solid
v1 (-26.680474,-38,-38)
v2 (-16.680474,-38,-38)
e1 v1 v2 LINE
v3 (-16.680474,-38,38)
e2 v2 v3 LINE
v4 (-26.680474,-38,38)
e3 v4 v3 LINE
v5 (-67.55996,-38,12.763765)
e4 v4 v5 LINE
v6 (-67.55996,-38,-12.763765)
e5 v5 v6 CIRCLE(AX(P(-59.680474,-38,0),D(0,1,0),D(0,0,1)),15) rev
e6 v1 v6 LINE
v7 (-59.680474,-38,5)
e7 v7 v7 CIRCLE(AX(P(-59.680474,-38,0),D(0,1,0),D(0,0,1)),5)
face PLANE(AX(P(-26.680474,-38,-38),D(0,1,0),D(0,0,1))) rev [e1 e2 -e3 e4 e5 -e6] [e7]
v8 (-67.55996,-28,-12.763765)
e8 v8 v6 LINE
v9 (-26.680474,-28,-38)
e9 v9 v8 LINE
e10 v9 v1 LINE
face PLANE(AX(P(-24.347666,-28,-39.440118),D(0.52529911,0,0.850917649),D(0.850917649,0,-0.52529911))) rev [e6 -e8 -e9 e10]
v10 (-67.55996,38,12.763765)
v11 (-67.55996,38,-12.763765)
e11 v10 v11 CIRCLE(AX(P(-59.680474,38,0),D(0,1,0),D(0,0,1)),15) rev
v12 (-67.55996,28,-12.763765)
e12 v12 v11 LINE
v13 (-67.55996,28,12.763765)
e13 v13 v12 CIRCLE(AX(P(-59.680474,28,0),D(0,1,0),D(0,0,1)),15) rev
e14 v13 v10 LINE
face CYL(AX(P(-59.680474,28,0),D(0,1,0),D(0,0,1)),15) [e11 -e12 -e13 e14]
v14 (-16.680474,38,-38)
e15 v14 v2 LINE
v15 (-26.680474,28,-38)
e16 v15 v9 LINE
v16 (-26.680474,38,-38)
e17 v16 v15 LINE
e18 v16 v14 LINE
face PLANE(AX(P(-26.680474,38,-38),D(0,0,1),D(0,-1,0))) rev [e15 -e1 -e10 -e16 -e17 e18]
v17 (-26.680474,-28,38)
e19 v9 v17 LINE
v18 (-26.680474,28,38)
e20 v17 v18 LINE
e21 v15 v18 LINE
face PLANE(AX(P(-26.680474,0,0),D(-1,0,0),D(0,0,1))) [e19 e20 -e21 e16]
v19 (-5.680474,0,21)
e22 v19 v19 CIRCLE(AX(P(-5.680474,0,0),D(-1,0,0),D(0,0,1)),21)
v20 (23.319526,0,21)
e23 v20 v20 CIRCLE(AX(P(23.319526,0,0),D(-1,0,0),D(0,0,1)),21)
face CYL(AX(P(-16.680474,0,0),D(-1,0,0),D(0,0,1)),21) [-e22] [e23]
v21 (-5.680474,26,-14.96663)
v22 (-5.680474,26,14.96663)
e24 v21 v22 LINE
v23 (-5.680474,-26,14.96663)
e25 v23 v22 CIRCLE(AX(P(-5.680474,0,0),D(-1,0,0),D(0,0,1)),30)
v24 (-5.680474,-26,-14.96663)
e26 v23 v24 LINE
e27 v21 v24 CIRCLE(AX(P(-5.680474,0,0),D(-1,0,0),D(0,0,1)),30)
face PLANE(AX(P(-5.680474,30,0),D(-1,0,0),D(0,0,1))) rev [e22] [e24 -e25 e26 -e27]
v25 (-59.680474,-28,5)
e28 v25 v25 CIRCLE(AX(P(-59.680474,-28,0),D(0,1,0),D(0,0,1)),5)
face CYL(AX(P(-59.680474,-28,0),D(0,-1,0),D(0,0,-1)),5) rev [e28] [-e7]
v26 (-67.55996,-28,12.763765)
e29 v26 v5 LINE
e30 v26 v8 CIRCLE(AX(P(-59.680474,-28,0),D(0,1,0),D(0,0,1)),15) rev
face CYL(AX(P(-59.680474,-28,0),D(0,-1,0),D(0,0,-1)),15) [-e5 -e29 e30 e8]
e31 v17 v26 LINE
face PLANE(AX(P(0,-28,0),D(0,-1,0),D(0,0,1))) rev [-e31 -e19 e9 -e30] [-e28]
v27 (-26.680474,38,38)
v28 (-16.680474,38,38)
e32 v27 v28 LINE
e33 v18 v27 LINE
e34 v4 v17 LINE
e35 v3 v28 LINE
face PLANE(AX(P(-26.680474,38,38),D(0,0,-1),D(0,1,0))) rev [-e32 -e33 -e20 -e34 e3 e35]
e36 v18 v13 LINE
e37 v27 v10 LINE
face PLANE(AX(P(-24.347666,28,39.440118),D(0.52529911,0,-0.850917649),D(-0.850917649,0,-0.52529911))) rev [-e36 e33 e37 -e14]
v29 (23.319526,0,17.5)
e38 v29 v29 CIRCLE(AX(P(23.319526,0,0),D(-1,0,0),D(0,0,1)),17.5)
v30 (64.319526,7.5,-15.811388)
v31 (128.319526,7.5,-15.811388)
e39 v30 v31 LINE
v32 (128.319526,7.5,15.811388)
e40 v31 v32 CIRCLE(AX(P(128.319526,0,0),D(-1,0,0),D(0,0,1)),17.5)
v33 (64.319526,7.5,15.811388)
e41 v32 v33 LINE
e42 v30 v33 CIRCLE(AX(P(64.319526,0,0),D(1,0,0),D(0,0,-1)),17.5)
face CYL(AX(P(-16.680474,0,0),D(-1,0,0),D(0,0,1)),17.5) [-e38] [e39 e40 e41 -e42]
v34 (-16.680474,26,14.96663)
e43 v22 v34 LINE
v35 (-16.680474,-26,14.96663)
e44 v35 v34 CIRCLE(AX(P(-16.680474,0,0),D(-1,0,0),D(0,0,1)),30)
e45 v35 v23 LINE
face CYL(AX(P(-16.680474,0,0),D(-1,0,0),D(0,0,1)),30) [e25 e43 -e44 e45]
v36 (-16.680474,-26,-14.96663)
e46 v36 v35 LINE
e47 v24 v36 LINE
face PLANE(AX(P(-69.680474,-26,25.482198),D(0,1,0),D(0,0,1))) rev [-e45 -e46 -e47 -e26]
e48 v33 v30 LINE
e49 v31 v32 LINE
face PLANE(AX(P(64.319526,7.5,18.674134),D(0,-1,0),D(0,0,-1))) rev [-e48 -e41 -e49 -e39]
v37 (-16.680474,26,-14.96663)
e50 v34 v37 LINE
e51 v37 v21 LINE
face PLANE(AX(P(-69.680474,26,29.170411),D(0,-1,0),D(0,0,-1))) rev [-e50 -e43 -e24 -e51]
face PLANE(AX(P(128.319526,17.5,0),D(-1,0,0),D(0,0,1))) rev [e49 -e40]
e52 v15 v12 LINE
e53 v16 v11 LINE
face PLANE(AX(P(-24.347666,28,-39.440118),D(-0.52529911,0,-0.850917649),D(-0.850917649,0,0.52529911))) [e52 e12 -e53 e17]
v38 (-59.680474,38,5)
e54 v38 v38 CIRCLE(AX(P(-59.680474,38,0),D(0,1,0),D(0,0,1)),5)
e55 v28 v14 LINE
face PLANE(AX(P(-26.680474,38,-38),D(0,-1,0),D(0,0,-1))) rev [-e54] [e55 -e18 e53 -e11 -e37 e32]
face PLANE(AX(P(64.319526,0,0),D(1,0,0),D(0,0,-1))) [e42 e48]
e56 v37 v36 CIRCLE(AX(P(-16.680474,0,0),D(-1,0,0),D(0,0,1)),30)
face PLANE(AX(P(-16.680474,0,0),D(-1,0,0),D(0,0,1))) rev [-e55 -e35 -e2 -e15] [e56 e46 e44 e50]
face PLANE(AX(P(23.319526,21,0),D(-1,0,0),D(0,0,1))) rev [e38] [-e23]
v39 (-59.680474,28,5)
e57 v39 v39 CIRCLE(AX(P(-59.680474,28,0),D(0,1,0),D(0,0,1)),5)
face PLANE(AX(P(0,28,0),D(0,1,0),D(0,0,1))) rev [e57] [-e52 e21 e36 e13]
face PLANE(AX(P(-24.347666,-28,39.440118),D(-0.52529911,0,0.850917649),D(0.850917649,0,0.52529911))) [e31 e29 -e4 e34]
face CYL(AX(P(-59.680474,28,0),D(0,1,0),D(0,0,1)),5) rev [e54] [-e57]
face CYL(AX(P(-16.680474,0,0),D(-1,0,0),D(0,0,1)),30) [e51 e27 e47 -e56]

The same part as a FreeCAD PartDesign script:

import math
import FreeCAD as App
import Part
import Sketcher

doc = App.newDocument("Part")
body = doc.addObject("PartDesign::Body", "Body")

# Sketch on XY plane
sketch1 = body.newObject("Sketcher::SketchObject", "Sketch")
sketch1.AttachmentSupport = (doc.getObject("XY_Plane"), [""])
sketch1.MapMode = "FlatFace"
sketch1.addGeometry([
    Part.LineSegment(App.Vector(-16.680474, 30, 0), App.Vector(-16.680474, 0, 0)),  # 0
    Part.LineSegment(App.Vector(-16.680474, 0, 0), App.Vector(128.319526, 0, 0)),  # 1
    Part.LineSegment(App.Vector(128.319526, 0, 0), App.Vector(128.319526, 17.5, 0)),  # 2
    Part.LineSegment(App.Vector(128.319526, 17.5, 0), App.Vector(23.319526, 17.5, 0)),  # 3
    Part.LineSegment(App.Vector(23.319526, 17.5, 0), App.Vector(23.319526, 21, 0)),  # 4
    Part.LineSegment(App.Vector(23.319526, 21, 0), App.Vector(-5.680474, 21, 0)),  # 5
    Part.LineSegment(App.Vector(-5.680474, 21, 0), App.Vector(-5.680474, 30, 0)),  # 6
    Part.LineSegment(App.Vector(-5.680474, 30, 0), App.Vector(-16.680474, 30, 0)),  # 7
], False)
sketch1.addConstraint([
    Sketcher.Constraint("Coincident", 0, 2, 1, 1),
    Sketcher.Constraint("Coincident", 1, 2, 2, 1),
    Sketcher.Constraint("Coincident", 2, 2, 3, 1),
    Sketcher.Constraint("Coincident", 3, 2, 4, 1),
    Sketcher.Constraint("Coincident", 4, 2, 5, 1),
    Sketcher.Constraint("Coincident", 5, 2, 6, 1),
    Sketcher.Constraint("Coincident", 6, 2, 7, 1),
    Sketcher.Constraint("Coincident", 7, 2, 0, 1),
    Sketcher.Constraint("Vertical", 0),
    Sketcher.Constraint("Horizontal", 1),
    Sketcher.Constraint("Vertical", 2),
    Sketcher.Constraint("Horizontal", 3),
    Sketcher.Constraint("Vertical", 4),
    Sketcher.Constraint("Horizontal", 5),
    Sketcher.Constraint("Vertical", 6),
    Sketcher.Constraint("Horizontal", 7),
    Sketcher.Constraint("PointOnObject", 0, 2, -1),
    Sketcher.Constraint("DistanceX", 1, 1, 1, 2, 145.0),
    Sketcher.Constraint("DistanceX", 3, 2, 3, 1, 105.0),
    Sketcher.Constraint("DistanceX", 5, 2, 5, 1, 29.0),
    Sketcher.Constraint("DistanceY", 0, 2, 0, 1, 30.0),
    Sketcher.Constraint("DistanceY", 6, 1, 6, 2, 9.0),
    Sketcher.Constraint("DistanceY", 2, 1, 2, 2, 17.5),
    Sketcher.Constraint("DistanceX", 0, 2, -1, 1, 16.680474),
])
revolution = body.newObject("PartDesign::Revolution", "Revolution")
revolution.Profile = sketch1
revolution.ReferenceAxis = (sketch1, ["H_Axis"])
revolution.Angle = 360

# Sketch on YZ plane
sketch2 = body.newObject("Sketcher::SketchObject", "Sketch001")
sketch2.AttachmentSupport = (doc.getObject("YZ_Plane"), [""])
sketch2.MapMode = "FlatFace"
sketch2.AttachmentOffset = App.Placement(App.Vector(0, 0, 128.319526), App.Rotation())
sketch2.addGeometry([
    Part.LineSegment(App.Vector(19.240278, 18.674134, 0), App.Vector(7.5, 18.674134, 0)),
    Part.LineSegment(App.Vector(7.5, 18.674134, 0), App.Vector(7.5, -34.90566, 0)),
    Part.LineSegment(App.Vector(7.5, -34.90566, 0), App.Vector(19.240278, -34.90566, 0)),
    Part.LineSegment(App.Vector(19.240278, -34.90566, 0), App.Vector(19.240278, 18.674134, 0)),
], False)
sketch2.addConstraint([
    Sketcher.Constraint("Coincident", 0, 2, 1, 1),
    Sketcher.Constraint("Coincident", 1, 2, 2, 1),
    Sketcher.Constraint("Coincident", 2, 2, 3, 1),
    Sketcher.Constraint("Coincident", 3, 2, 0, 1),
    Sketcher.Constraint("Horizontal", 0),
    Sketcher.Constraint("Vertical", 1),
    Sketcher.Constraint("Horizontal", 2),
    Sketcher.Constraint("Vertical", 3),
    Sketcher.Constraint("DistanceX", -1, 1, 0, 2, 7.5),
    Sketcher.Constraint("DistanceX", 0, 2, 0, 1, 11.740278),
    Sketcher.Constraint("DistanceY", 1, 2, 1, 1, 53.579794),
    Sketcher.Constraint("DistanceY", 1, 2, -1, 1, 34.90566),
])
pocket1 = body.newObject("PartDesign::Pocket", "Pocket")
pocket1.Profile = sketch2
pocket1.Length = 64

# Sketch on YZ plane
sketch3 = body.newObject("Sketcher::SketchObject", "Sketch002")
sketch3.AttachmentSupport = (doc.getObject("YZ_Plane"), [""])
sketch3.MapMode = "FlatFace"
sketch3.AttachmentOffset = App.Placement(App.Vector(0, 0, -5.680474), App.Rotation())
sketch3.addGeometry([
    Part.LineSegment(App.Vector(37.064639, 29.170411, 0), App.Vector(26, 29.170411, 0)),  # 0
    Part.LineSegment(App.Vector(26, 29.170411, 0), App.Vector(26, -28.416004, 0)),  # 1
    Part.LineSegment(App.Vector(26, -28.416004, 0), App.Vector(37.064639, -28.416004, 0)),  # 2
    Part.LineSegment(App.Vector(37.064639, -28.416004, 0), App.Vector(37.064639, 29.170411, 0)),  # 3
    Part.LineSegment(App.Vector(-26, 25.482198, 0), App.Vector(-35.555824, 25.482198, 0)),  # 4
    Part.LineSegment(App.Vector(-35.555824, 25.482198, 0), App.Vector(-35.555824, -23.135153, 0)),  # 5
    Part.LineSegment(App.Vector(-35.555824, -23.135153, 0), App.Vector(-26, -23.135153, 0)),  # 6
    Part.LineSegment(App.Vector(-26, -23.135153, 0), App.Vector(-26, 25.482198, 0)),  # 7
], False)
sketch3.addConstraint([
    Sketcher.Constraint("Coincident", 0, 2, 1, 1),
    Sketcher.Constraint("Coincident", 1, 2, 2, 1),
    Sketcher.Constraint("Coincident", 2, 2, 3, 1),
    Sketcher.Constraint("Coincident", 3, 2, 0, 1),
    Sketcher.Constraint("Coincident", 4, 2, 5, 1),
    Sketcher.Constraint("Coincident", 5, 2, 6, 1),
    Sketcher.Constraint("Coincident", 6, 2, 7, 1),
    Sketcher.Constraint("Coincident", 7, 2, 4, 1),
    Sketcher.Constraint("Horizontal", 0),
    Sketcher.Constraint("Vertical", 1),
    Sketcher.Constraint("Horizontal", 2),
    Sketcher.Constraint("Vertical", 3),
    Sketcher.Constraint("Horizontal", 4),
    Sketcher.Constraint("Vertical", 5),
    Sketcher.Constraint("Horizontal", 6),
    Sketcher.Constraint("Vertical", 7),
    Sketcher.Constraint("DistanceX", -1, 1, 0, 2, 26.0),
    Sketcher.Constraint("DistanceX", 6, 2, -1, 1, 26.0),
    Sketcher.Constraint("DistanceX", 0, 2, 0, 1, 11.064639),
    Sketcher.Constraint("DistanceY", 5, 2, 5, 1, 48.617351),
    Sketcher.Constraint("DistanceY", 1, 2, 4, 2, 53.898202),
    Sketcher.Constraint("DistanceX", 4, 2, 4, 1, 9.555824),
    Sketcher.Constraint("DistanceY", 1, 2, 1, 1, 57.586415),
    Sketcher.Constraint("DistanceY", -1, 1, 0, 2, 29.170411),
])
pocket2 = body.newObject("PartDesign::Pocket", "Pocket001")
pocket2.Profile = sketch3
pocket2.Length = 64

# Sketch on YZ plane
sketch4 = body.newObject("Sketcher::SketchObject", "Sketch003")
sketch4.AttachmentSupport = (doc.getObject("YZ_Plane"), [""])
sketch4.MapMode = "FlatFace"
sketch4.AttachmentOffset = App.Placement(App.Vector(0, 0, -16.680474), App.Rotation())
sketch4.addGeometry([
    Part.LineSegment(App.Vector(38, -38, 0), App.Vector(-38, -38, 0)),
    Part.LineSegment(App.Vector(-38, -38, 0), App.Vector(-38, 38, 0)),
    Part.LineSegment(App.Vector(-38, 38, 0), App.Vector(38, 38, 0)),
    Part.LineSegment(App.Vector(38, 38, 0), App.Vector(38, -38, 0)),
], False)
sketch4.addConstraint([
    Sketcher.Constraint("Coincident", 0, 2, 1, 1),
    Sketcher.Constraint("Coincident", 1, 2, 2, 1),
    Sketcher.Constraint("Coincident", 2, 2, 3, 1),
    Sketcher.Constraint("Coincident", 3, 2, 0, 1),
    Sketcher.Constraint("Horizontal", 0),
    Sketcher.Constraint("Vertical", 1),
    Sketcher.Constraint("Horizontal", 2),
    Sketcher.Constraint("Vertical", 3),
    Sketcher.Constraint("Symmetric", 0, 2, 2, 2, -1, 1),
    Sketcher.Constraint("Equal", 2, 1),
    Sketcher.Constraint("DistanceX", 0, 2, 0, 1, 76.0),
])
pad1 = body.newObject("PartDesign::Pad", "Pad")
pad1.Profile = sketch4
pad1.Length = 10
pad1.Reversed = True

# Sketch on XZ plane
sketch5 = body.newObject("Sketcher::SketchObject", "Sketch004")
sketch5.AttachmentSupport = (doc.getObject("XZ_Plane"), [""])
sketch5.MapMode = "FlatFace"
sketch5.AttachmentOffset = App.Placement(App.Vector(0, 0, -38), App.Rotation())
sketch5.addGeometry([
    Part.ArcOfCircle(Part.Circle(App.Vector(-59.680474, 0, 0), App.Vector(0, 0, 1), 15), math.radians(121.688381), math.radians(238.311619)),  # 0
    Part.LineSegment(App.Vector(-67.55996, 12.763765, 0), App.Vector(-26.680474, 38, 0)),  # 1
    Part.LineSegment(App.Vector(-26.680474, 38, 0), App.Vector(-26.680474, -38, 0)),  # 2
    Part.LineSegment(App.Vector(-26.680474, -38, 0), App.Vector(-67.55996, -12.763765, 0)),  # 3
    Part.Circle(App.Vector(-59.680474, 0, 0), App.Vector(0, 0, 1), 5),  # 4
], False)
sketch5.addConstraint([
    Sketcher.Constraint("Tangent", 0, 1, 1, 1),
    Sketcher.Constraint("Coincident", 1, 2, 2, 1),
    Sketcher.Constraint("Coincident", 2, 2, 3, 1),
    Sketcher.Constraint("Tangent", 3, 2, 0, 2),
    Sketcher.Constraint("Vertical", 2),
    Sketcher.Constraint("Coincident", 4, 3, 0, 3),
    Sketcher.Constraint("Symmetric", 0, 1, 3, 2, -1),
    Sketcher.Constraint("Diameter", 4, 10.0),
    Sketcher.Constraint("Radius", 0, 15.0),
    Sketcher.Constraint("DistanceY", 2, 2, 2, 1, 76.0),
    Sketcher.Constraint("DistanceX", 0, 3, 1, 2, 33.0),
    Sketcher.Constraint("DistanceX", 0, 1, -1, 1, 67.55996),
])
pad2 = body.newObject("PartDesign::Pad", "Pad001")
pad2.Profile = sketch5
pad2.Length = 10
doc.recompute()

mirrored = body.newObject("PartDesign::Mirrored", "Mirrored")
mirrored.Originals = [pad2]
mirrored.MirrorPlane = (doc.getObject("XZ_Plane"), [""])
body.Tip = mirrored

doc.recompute()
